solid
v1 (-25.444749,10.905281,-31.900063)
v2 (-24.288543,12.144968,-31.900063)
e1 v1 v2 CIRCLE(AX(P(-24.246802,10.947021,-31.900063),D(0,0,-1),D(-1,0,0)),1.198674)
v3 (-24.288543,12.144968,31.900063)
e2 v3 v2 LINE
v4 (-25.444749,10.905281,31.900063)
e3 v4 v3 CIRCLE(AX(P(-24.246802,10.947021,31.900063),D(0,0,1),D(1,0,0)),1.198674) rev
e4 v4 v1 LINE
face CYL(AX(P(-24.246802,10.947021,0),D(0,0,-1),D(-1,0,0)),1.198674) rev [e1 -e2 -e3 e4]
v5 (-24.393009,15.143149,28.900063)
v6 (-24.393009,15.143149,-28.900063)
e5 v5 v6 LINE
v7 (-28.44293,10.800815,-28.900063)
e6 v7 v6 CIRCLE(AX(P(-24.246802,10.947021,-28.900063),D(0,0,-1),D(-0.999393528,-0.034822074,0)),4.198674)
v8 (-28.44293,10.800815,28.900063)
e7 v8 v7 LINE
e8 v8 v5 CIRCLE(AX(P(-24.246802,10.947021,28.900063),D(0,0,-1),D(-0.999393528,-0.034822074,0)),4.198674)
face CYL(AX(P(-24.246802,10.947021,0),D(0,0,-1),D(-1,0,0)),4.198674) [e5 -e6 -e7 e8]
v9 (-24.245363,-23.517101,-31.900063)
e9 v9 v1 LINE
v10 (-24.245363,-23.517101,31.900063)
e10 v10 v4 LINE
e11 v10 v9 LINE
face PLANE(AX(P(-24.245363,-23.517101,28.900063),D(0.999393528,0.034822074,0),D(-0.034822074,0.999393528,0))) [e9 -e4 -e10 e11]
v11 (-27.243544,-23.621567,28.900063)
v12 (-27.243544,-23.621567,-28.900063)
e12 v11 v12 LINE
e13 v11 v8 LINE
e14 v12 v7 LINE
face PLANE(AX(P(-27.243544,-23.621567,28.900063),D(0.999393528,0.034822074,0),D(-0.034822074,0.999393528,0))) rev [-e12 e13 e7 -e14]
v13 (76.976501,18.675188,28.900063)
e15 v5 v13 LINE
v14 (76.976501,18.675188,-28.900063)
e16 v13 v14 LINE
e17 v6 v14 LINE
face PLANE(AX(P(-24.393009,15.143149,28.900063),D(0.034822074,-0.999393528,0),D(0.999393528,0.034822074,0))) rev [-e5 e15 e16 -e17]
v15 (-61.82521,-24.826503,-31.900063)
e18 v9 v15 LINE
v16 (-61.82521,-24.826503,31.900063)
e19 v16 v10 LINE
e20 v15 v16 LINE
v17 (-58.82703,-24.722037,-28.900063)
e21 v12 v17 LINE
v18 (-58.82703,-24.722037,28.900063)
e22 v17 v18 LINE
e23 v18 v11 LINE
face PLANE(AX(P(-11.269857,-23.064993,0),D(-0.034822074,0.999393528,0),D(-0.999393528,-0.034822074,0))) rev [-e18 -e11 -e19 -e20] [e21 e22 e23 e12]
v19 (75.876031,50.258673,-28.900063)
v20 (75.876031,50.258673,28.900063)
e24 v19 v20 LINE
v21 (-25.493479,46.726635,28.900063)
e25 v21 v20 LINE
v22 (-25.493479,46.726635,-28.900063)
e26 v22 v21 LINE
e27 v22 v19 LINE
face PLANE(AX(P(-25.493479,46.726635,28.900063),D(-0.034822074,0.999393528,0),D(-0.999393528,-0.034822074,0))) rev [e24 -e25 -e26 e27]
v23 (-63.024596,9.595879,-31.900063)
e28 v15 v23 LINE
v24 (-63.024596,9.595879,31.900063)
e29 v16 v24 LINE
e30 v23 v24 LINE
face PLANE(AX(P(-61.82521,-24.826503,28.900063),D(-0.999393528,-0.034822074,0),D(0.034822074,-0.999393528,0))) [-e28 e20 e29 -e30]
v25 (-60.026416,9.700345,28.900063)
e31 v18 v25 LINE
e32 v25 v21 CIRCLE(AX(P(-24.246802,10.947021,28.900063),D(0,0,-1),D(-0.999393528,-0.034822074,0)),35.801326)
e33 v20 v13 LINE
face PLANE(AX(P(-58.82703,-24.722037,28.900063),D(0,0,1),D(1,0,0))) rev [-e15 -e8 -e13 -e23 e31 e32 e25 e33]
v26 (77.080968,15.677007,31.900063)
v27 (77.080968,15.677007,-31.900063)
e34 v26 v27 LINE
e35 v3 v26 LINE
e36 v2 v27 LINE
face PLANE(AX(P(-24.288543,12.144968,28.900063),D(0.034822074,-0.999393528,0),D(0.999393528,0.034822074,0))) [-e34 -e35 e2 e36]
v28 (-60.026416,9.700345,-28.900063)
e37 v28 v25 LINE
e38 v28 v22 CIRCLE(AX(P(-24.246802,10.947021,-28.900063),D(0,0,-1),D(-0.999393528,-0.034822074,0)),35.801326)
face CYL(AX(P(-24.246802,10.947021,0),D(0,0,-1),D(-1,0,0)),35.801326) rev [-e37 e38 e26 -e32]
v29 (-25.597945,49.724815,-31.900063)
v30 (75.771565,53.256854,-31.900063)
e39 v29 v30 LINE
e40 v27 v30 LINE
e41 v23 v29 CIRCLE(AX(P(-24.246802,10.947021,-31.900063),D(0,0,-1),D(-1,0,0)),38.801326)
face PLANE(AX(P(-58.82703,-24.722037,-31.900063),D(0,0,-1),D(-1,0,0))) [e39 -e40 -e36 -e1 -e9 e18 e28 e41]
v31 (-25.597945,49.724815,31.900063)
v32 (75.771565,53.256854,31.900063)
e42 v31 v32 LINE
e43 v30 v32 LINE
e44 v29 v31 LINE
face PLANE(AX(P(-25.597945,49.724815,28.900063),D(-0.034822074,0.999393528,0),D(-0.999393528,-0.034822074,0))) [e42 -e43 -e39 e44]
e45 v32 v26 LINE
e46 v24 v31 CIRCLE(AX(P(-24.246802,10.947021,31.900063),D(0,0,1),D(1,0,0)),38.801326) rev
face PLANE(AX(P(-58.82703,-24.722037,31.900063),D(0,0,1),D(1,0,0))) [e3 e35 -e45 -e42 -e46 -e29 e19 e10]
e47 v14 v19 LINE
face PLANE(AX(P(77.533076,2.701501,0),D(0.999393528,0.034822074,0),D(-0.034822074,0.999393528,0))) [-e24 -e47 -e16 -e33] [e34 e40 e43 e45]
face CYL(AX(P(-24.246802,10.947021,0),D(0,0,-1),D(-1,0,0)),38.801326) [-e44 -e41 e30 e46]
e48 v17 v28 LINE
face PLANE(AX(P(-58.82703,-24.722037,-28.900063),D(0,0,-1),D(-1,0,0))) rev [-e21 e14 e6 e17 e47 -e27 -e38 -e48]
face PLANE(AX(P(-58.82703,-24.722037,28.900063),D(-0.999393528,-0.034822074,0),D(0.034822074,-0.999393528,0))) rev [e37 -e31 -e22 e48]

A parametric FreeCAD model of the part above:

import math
import FreeCAD as App
import Part
import Sketcher

V = App.Vector

doc = App.newDocument("Part")
body = doc.addObject("PartDesign::Body", "Body")

# Sketch on an angled plane
sketch1 = doc.addObject("Sketcher::SketchObject", "Sketch")
body.addObject(sketch1)
sketch1.Placement = App.Placement(V(76.426266, 34.466931, 0), App.Rotation(V(0, 0, -1), V(-0.034822074, 0.999393528, 0), V(0.999393528, 0.034822074, 0), "ZXY"))
sketch1.addGeometry(Part.LineSegment(V(-32, 19, 0), V(-32, -19, 0)), False)
sketch1.addGeometry(Part.LineSegment(V(-32, -19, 0), V(32, -19, 0)), False)
sketch1.addGeometry(Part.LineSegment(V(32, -19, 0), V(32, 19, 0)), False)
sketch1.addGeometry(Part.LineSegment(V(32, 19, 0), V(-32, 19, 0)), False)
sketch1.addGeometry(Part.LineSegment(V(29, -16, 0), V(-29, -16, 0)), False)
sketch1.addGeometry(Part.LineSegment(V(-29, -16, 0), V(-29, 16, 0)), False)
sketch1.addGeometry(Part.LineSegment(V(-29, 16, 0), V(29, 16, 0)), False)
sketch1.addGeometry(Part.LineSegment(V(29, 16, 0), V(29, -16, 0)), False)
sketch1.addConstraint(Sketcher.Constraint("Coincident", 0, 2, 1, 1))
sketch1.addConstraint(Sketcher.Constraint("Coincident", 1, 2, 2, 1))
sketch1.addConstraint(Sketcher.Constraint("Coincident", 2, 2, 3, 1))
sketch1.addConstraint(Sketcher.Constraint("Coincident", 3, 2, 0, 1))
sketch1.addConstraint(Sketcher.Constraint("Coincident", 4, 2, 5, 1))
sketch1.addConstraint(Sketcher.Constraint("Coincident", 5, 2, 6, 1))
sketch1.addConstraint(Sketcher.Constraint("Coincident", 6, 2, 7, 1))
sketch1.addConstraint(Sketcher.Constraint("Coincident", 7, 2, 4, 1))
sketch1.addConstraint(Sketcher.Constraint("Vertical", 0))
sketch1.addConstraint(Sketcher.Constraint("Horizontal", 1))
sketch1.addConstraint(Sketcher.Constraint("Vertical", 2))
sketch1.addConstraint(Sketcher.Constraint("Horizontal", 3))
sketch1.addConstraint(Sketcher.Constraint("Horizontal", 4))
sketch1.addConstraint(Sketcher.Constraint("Vertical", 5))
sketch1.addConstraint(Sketcher.Constraint("Horizontal", 6))
sketch1.addConstraint(Sketcher.Constraint("Vertical", 7))
sketch1.addConstraint(Sketcher.Constraint("Symmetric", 0, 2, 2, 2, -1, 1))
sketch1.addConstraint(Sketcher.Constraint("Symmetric", 4, 2, 6, 2, -1, 1))
sketch1.addConstraint(Sketcher.Constraint("DistanceX", 0, 2, 4, 2, 3.0))
sketch1.addConstraint(Sketcher.Constraint("DistanceY", 0, 2, 4, 2, 3.0))
sketch1.addConstraint(Sketcher.Constraint("DistanceY", 0, 2, 0, 1, 37.602652))
sketch1.addConstraint(Sketcher.Constraint("DistanceX", 1, 1, 1, 2, 63.800127))

# Sketch on XY plane
sketch2 = doc.addObject("Sketcher::SketchObject", "Sketch001")
body.addObject(sketch2)
sketch2.AttachmentSupport = (doc.XY_Plane, [""])
sketch2.MapMode = "FlatFace"
sketch2.addGeometry(Part.LineSegment(V(-43.035287, -24.171802, 0), V(-44.234673, 10.25058, 0)), False)
sketch2.addGeometry(Part.ArcOfCircle(Part.Circle(V(-24.246802, 10.947021, 0), V(0, 0, 1), 20), math.radians(91.995561), math.radians(181.995561)), False)
sketch2.addGeometry(Part.LineSegment(V(-24.943244, 30.934892, 0), V(76.426266, 34.466931, 0)), False)
sketch2.addConstraint(Sketcher.Constraint("Coincident", 0, 2, 1, 2))
sketch2.addConstraint(Sketcher.Constraint("Coincident", 1, 1, 2, 1))
sketch2.addConstraint(Sketcher.Constraint("Radius", 1, 20.0))
sketch2.addConstraint(Sketcher.Constraint("Distance", 0, 34.443271))
sketch2.addConstraint(Sketcher.Constraint("DistanceY", -1, 1, 1, 3, 10.947021))
sketch2.addConstraint(Sketcher.Constraint("DistanceY", -1, 1, 0, 2, 10.25058))
sketch2.addConstraint(Sketcher.Constraint("DistanceY", -1, 1, 1, 1, 30.934892))
sketch2.addConstraint(Sketcher.Constraint("DistanceY", -1, 1, 2, 2, 34.466931))
sketch2.addConstraint(Sketcher.Constraint("DistanceY", 0, 1, 0, 2, 34.422382))
sketch2.addConstraint(Sketcher.Constraint("DistanceX", 1, 1, 2, 2, 101.36951))
sketch2.addConstraint(Sketcher.Constraint("DistanceX", 1, 3, -1, 1, 24.246802))
doc.recompute()

additivepipe = doc.addObject("PartDesign::AdditivePipe", "AdditivePipe")
body.addObject(additivepipe)
additivepipe.Profile = sketch1
additivepipe.Spine = (sketch2, ["Edge1", "Edge2", "Edge3"])

doc.recompute()
